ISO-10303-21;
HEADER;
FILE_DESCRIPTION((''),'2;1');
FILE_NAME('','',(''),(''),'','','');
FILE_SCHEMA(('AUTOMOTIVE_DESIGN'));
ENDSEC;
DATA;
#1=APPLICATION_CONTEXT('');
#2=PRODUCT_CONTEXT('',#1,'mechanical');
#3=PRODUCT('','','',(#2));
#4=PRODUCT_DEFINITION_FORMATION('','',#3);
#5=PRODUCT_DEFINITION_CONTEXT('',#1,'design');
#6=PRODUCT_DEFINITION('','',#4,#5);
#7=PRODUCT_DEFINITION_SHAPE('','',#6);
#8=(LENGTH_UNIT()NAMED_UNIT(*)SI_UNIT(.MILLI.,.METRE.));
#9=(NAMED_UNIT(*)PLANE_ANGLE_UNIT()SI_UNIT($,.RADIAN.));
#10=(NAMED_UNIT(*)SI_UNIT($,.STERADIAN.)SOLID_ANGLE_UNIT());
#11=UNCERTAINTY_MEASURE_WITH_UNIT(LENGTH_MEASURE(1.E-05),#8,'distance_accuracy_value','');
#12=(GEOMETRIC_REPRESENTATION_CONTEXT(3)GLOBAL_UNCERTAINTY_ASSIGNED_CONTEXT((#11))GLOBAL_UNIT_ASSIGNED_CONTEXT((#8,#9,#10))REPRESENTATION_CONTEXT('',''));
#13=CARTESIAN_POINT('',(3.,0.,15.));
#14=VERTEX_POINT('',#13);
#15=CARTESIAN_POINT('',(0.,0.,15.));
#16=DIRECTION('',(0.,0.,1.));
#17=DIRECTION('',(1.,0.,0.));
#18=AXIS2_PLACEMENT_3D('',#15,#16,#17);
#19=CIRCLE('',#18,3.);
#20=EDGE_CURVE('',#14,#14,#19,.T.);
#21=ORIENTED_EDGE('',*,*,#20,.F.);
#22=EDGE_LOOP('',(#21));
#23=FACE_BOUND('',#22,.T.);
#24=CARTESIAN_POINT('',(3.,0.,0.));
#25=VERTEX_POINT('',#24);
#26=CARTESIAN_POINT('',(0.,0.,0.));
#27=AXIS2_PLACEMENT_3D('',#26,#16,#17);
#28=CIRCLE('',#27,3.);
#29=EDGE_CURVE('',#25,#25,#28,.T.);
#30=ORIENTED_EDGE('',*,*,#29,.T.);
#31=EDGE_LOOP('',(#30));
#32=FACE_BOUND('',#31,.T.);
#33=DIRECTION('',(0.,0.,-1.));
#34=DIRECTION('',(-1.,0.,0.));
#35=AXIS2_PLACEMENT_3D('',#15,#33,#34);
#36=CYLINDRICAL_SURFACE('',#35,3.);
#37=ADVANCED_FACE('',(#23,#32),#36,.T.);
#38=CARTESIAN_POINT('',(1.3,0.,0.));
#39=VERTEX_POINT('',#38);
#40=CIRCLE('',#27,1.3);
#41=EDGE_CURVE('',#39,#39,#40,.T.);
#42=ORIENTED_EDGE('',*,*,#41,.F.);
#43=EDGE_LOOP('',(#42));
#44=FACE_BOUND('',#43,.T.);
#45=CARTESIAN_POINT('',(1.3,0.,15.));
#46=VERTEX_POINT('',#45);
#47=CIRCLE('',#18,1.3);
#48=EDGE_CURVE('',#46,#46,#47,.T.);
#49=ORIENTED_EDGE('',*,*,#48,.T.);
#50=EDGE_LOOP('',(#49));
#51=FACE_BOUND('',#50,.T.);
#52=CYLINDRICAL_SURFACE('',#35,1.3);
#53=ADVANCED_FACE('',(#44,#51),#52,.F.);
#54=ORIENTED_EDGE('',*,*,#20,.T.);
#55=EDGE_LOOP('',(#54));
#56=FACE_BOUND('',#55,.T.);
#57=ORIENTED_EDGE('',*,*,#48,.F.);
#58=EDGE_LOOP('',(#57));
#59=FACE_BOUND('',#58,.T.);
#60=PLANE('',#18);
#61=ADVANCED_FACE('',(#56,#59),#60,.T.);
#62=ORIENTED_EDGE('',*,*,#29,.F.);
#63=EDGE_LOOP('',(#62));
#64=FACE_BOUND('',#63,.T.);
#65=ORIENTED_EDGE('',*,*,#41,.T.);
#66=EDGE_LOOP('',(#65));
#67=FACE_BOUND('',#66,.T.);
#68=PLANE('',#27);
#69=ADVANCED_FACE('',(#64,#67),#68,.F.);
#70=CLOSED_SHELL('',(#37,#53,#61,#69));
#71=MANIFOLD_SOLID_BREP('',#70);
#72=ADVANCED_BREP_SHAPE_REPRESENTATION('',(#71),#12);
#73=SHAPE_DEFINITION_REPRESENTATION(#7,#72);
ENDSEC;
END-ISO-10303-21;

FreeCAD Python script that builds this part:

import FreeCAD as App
import Part
import Sketcher

V = App.Vector
Q = App.Units.Quantity

doc = App.newDocument("Part")
body = doc.addObject("PartDesign::Body", "Body")

sketch1 = body.newObject("Sketcher::SketchObject", "Sketch")
sketch1.AttachmentSupport = (doc.getObject("XY_Plane"), [""])
sketch1.MapMode = "FlatFace"
sketch1.addGeometry(Part.Circle(V(0, 0, 0), V(0, 0, 1), 3), False)
sketch1.addGeometry(Part.Circle(V(0, 0, 0), V(0, 0, 1), 1.3), False)
sketch1.addConstraint(Sketcher.Constraint("Coincident", 0, 3, -1, 1))
sketch1.addConstraint(Sketcher.Constraint("Coincident", 1, 3, -1, 1))
sketch1.addConstraint(Sketcher.Constraint("Diameter", 0, Q("6 mm")))
sketch1.addConstraint(Sketcher.Constraint("Diameter", 1, Q("2.6 mm")))
pad1 = body.newObject("PartDesign::Pad", "Pad")
pad1.Profile = sketch1
pad1.Length = 15

doc.recompute()
